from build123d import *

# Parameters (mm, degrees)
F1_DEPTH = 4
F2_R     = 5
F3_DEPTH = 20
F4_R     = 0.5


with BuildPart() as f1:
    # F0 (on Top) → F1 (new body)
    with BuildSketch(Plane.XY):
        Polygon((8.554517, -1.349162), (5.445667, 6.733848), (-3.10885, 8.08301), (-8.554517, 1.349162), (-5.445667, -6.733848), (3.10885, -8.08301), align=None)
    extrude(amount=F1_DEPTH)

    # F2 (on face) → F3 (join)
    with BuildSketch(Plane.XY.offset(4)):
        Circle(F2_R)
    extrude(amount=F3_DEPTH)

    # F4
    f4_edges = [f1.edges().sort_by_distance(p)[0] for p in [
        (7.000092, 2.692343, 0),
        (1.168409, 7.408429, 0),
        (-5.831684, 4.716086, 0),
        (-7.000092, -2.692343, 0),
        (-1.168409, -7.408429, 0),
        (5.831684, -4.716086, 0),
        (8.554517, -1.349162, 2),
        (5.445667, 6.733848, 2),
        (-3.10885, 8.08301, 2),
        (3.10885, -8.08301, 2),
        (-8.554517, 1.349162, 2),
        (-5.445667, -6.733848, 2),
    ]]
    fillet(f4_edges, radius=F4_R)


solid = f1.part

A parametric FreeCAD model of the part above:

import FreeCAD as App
import Part
import Sketcher
Q = App.Units.Quantity


def edges_at(feature, points):
    """Names of the edges that pass closest to the given points."""
    edges = feature.Shape.Edges
    near = lambda p: min(range(len(edges)), key=lambda i: edges[i].distToShape(Part.Vertex(*p))[0])
    return sorted({f"Edge{near(p) + 1}" for p in points})


def add_polygon(sketch, points):
    """Adds a closed chain of lines whose ends are joined by coincident constraints."""
    first, n = sketch.GeometryCount, len(points)
    for a, b in zip(points, points[1:] + points[:1]):
        sketch.addGeometry(Part.LineSegment(App.Vector(*a, 0), App.Vector(*b, 0)), False)
    for i in range(n):
        sketch.addConstraint(Sketcher.Constraint("Coincident", first + i, 2, first + (i + 1) % n, 1))

doc = App.newDocument("Part")
body = doc.addObject("PartDesign::Body", "Body")

# Sketch on XY plane
sketch1 = body.newObject("Sketcher::SketchObject", "Sketch")
sketch1.AttachmentSupport = (doc.getObject("XY_Plane"), [""])
sketch1.MapMode = "FlatFace"
add_polygon(sketch1, [(9, -1), (5, 7), (-3, 8), (-9, 1), (-5, -7), (3, -8)])  # lines 0-5
sketch1.addConstraint(Sketcher.Constraint("Symmetric", 0, 2, 3, 2, -1, 1))
sketch1.addConstraint(Sketcher.Constraint("Symmetric", 1, 2, 4, 2, -1, 1))
sketch1.addConstraint(Sketcher.Constraint("Symmetric", 2, 2, 5, 2, -1, 1))
sketch1.addConstraint(Sketcher.Constraint("Equal", 0, 1))
sketch1.addConstraint(Sketcher.Constraint("Equal", 1, 2))
sketch1.addConstraint(Sketcher.Constraint("DistanceX", 1, 2, 4, 2, Q("6.2177 mm")))
sketch1.addConstraint(Sketcher.Constraint("DistanceY", -1, 1, 1, 2, Q("8.08301 mm")))
sketch1.addConstraint(Sketcher.Constraint("DistanceY", 0, 2, 1, 2, Q("1.349162 mm")))
sketch1.addConstraint(Sketcher.Constraint("DistanceX", 2, 2, 3, 2, Q("3.10885 mm")))
pad1 = body.newObject("PartDesign::Pad", "Pad")
pad1.Profile = sketch1
pad1.Length = 4

# Sketch on XY plane
sketch2 = body.newObject("Sketcher::SketchObject", "Sketch001")
sketch2.AttachmentSupport = (doc.getObject("XY_Plane"), [""])
sketch2.MapMode = "FlatFace"
sketch2.AttachmentOffset = App.Placement(App.Vector(0, 0, 4), App.Rotation())
sketch2.addGeometry(Part.Circle(App.Vector(0, 0, 0), App.Vector(0, 0, 1), 5), False)
sketch2.addConstraint(Sketcher.Constraint("Coincident", 0, 3, -1, 1))
sketch2.addConstraint(Sketcher.Constraint("Diameter", 0, Q("10 mm")))
pad2 = body.newObject("PartDesign::Pad", "Pad001")
pad2.Profile = sketch2
pad2.Length = 20
doc.recompute()

fillet = body.newObject("PartDesign::Fillet", "Fillet")
fillet.Base = (pad2, edges_at(pad2, [
    (7, 2.692, 0),
    (1.168, 7.408, 0),
    (-5.832, 4.716, 0),
    (-7, -2.692, 0),
    (-1.168, -7.408, 0),
    (5.832, -4.716, 0),
    (8.555, -1.349, 2),
    (5.446, 6.734, 2),
    (-3.109, 8.083, 2),
    (3.109, -8.083, 2),
    (-8.555, 1.349, 2),
    (-5.446, -6.734, 2),
]))
fillet.Radius = 0.5

doc.recompute()
